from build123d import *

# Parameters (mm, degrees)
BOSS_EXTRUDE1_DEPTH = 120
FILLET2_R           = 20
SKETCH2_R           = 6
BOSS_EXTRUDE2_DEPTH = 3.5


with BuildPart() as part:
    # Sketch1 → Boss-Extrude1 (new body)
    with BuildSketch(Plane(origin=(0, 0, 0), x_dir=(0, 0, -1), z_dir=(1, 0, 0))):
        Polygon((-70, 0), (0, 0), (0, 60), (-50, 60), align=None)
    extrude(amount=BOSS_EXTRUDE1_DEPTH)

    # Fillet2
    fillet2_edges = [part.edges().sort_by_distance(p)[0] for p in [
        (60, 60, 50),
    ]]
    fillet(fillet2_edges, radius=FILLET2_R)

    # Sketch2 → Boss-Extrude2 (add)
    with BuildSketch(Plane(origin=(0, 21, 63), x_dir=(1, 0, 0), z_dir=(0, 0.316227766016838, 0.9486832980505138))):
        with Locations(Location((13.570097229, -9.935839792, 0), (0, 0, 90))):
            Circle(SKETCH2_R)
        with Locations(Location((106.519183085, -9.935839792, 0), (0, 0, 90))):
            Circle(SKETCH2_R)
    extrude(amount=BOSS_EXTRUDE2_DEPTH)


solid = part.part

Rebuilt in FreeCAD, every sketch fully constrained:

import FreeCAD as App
import Part
import Sketcher
from FreeCAD import Vector
Q = App.Units.Quantity


def edges_at(feature, points):
    """Names of the edges that pass closest to the given points."""
    edges = feature.Shape.Edges
    near = lambda p: min(range(len(edges)), key=lambda i: edges[i].distToShape(Part.Vertex(*p))[0])
    return sorted({f"Edge{near(p) + 1}" for p in points})


def add_polygon(sketch, points):
    """Adds a closed chain of lines whose ends are joined by coincident constraints."""
    first, n = sketch.GeometryCount, len(points)
    for a, b in zip(points, points[1:] + points[:1]):
        sketch.addGeometry(Part.LineSegment(App.Vector(*a, 0), App.Vector(*b, 0)), False)
    for i in range(n):
        sketch.addConstraint(Sketcher.Constraint("Coincident", first + i, 2, first + (i + 1) % n, 1))

doc = App.newDocument("Part")
body = doc.addObject("PartDesign::Body", "Body")

# Sketch on YZ plane
sketch1 = body.newObject("Sketcher::SketchObject", "Sketch")
sketch1.AttachmentSupport = (doc.getObject("YZ_Plane"), [""])
sketch1.MapMode = "FlatFace"
add_polygon(sketch1, [(0, 70), (0, 0), (60, 0), (60, 50)])  # lines 0-3
sketch1.addConstraint(Sketcher.Constraint("Vertical", 0))
sketch1.addConstraint(Sketcher.Constraint("Horizontal", 1))
sketch1.addConstraint(Sketcher.Constraint("Vertical", 2))
sketch1.addConstraint(Sketcher.Constraint("Coincident", 0, 2, -1, 1))
sketch1.addConstraint(Sketcher.Constraint("DistanceX", 1, 1, 1, 2, Q("60 mm")))
sketch1.addConstraint(Sketcher.Constraint("DistanceY", 0, 2, 0, 1, Q("70 mm")))
sketch1.addConstraint(Sketcher.Constraint("DistanceY", 2, 1, 2, 2, Q("50 mm")))
pad1 = body.newObject("PartDesign::Pad", "Pad")
pad1.Profile = sketch1
pad1.Length = 120
doc.recompute()

fillet = body.newObject("PartDesign::Fillet", "Fillet")
fillet.Base = (pad1, edges_at(pad1, [(60, 60, 50)]))
fillet.Radius = 20

# Sketch on an angled plane
sketch2 = body.newObject("Sketcher::SketchObject", "Sketch001")
sketch2.Placement = App.Placement(Vector(0, 21, 63), App.Rotation(Vector(1, 0, 0), Vector(0, 0.948683298, -0.316227766), Vector(0, 0.316227766, 0.948683298), "ZXY"))
sketch2.addGeometry(Part.Circle(Vector(14, -10, 0), Vector(0, 0, 1), 6), False)
sketch2.addGeometry(Part.Circle(Vector(107, -10, 0), Vector(0, 0, 1), 6), False)
sketch2.addConstraint(Sketcher.Constraint("Equal", 0, 1))
sketch2.addConstraint(Sketcher.Constraint("Horizontal", 0, 3, 1, 3))
sketch2.addConstraint(Sketcher.Constraint("Diameter", 0, Q("12 mm")))
sketch2.addConstraint(Sketcher.Constraint("DistanceY", 0, 3, -1, 1, Q("9.93584 mm")))
sketch2.addConstraint(Sketcher.Constraint("DistanceX", -1, 1, 0, 3, Q("13.570097 mm")))
sketch2.addConstraint(Sketcher.Constraint("DistanceX", -1, 1, 1, 3, Q("106.519183 mm")))
pad2 = body.newObject("PartDesign::Pad", "Pad001")
pad2.Profile = sketch2
pad2.Length = 3.5

doc.recompute()
